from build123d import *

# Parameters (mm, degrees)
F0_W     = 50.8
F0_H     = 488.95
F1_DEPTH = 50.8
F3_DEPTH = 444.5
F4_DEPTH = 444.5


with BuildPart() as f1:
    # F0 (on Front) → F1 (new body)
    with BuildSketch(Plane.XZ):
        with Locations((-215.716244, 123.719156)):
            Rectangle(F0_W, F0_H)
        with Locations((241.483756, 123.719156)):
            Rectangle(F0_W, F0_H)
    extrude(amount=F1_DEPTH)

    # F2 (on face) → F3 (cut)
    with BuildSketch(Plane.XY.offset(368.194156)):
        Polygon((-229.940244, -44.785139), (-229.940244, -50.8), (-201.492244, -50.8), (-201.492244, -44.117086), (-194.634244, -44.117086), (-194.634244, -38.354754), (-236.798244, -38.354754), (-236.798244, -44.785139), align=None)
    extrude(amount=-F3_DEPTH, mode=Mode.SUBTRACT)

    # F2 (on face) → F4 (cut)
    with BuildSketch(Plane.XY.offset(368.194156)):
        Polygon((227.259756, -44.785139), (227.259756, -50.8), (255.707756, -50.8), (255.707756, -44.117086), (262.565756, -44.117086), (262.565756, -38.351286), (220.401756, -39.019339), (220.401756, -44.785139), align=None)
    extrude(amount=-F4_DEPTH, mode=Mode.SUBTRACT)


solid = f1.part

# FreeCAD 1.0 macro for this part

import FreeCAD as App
import Part
import Sketcher
Q = App.Units.Quantity

doc = App.newDocument("Part")
params = doc.addObject("Spreadsheet::Sheet", "Params")
for row, (alias, value) in enumerate([
    ("sketch1_width", "2 in"),
    ("sketch1_height", "19.25 in"),
    ("pad1_length", "2 in"),
    ("sketch2_width", "1.12 in"),
    ("sketch2_width2", "0.27 in"),
    ("pocket1_length", "17.5 in"),
    ("sketch3_width", "1.12 in"),
    ("sketch3_width2", "0.27 in"),
    ("sketch3_height", "0.227 in"),
    ("pocket2_length", "17.5 in"),
], start=1):
    params.set(f"A{row}", alias)
    params.set(f"B{row}", "=" + value)
    params.setAlias(f"B{row}", alias)

body = doc.addObject("PartDesign::Body", "Body")
body.AllowCompound = True

# Sketch on XZ plane
sketch1 = body.newObject("Sketcher::SketchObject", "Sketch")
sketch1.AttachmentSupport = (doc.getObject("XZ_Plane"), [""])
sketch1.MapMode = "FlatFace"
sketch1.addGeometry([
    Part.LineSegment(App.Vector(-241, 368, 0), App.Vector(-241, -121, 0)),  # 0
    Part.LineSegment(App.Vector(-241, -121, 0), App.Vector(-190, -121, 0)),  # 1
    Part.LineSegment(App.Vector(-190, -121, 0), App.Vector(-190, 368, 0)),  # 2
    Part.LineSegment(App.Vector(-190, 368, 0), App.Vector(-241, 368, 0)),  # 3
    Part.LineSegment(App.Vector(216, 368, 0), App.Vector(216, -121, 0)),  # 4
    Part.LineSegment(App.Vector(216, -121, 0), App.Vector(267, -121, 0)),  # 5
    Part.LineSegment(App.Vector(267, -121, 0), App.Vector(267, 368, 0)),  # 6
    Part.LineSegment(App.Vector(267, 368, 0), App.Vector(216, 368, 0)),  # 7
], False)
sketch1.addConstraint([
    Sketcher.Constraint("Coincident", 0, 2, 1, 1),
    Sketcher.Constraint("Coincident", 1, 2, 2, 1),
    Sketcher.Constraint("Coincident", 2, 2, 3, 1),
    Sketcher.Constraint("Coincident", 3, 2, 0, 1),
    Sketcher.Constraint("Coincident", 4, 2, 5, 1),
    Sketcher.Constraint("Coincident", 5, 2, 6, 1),
    Sketcher.Constraint("Coincident", 6, 2, 7, 1),
    Sketcher.Constraint("Coincident", 7, 2, 4, 1),
    Sketcher.Constraint("Vertical", 0),
    Sketcher.Constraint("Horizontal", 1),
    Sketcher.Constraint("Vertical", 2),
    Sketcher.Constraint("Horizontal", 3),
    Sketcher.Constraint("Vertical", 4),
    Sketcher.Constraint("Horizontal", 5),
    Sketcher.Constraint("Vertical", 6),
    Sketcher.Constraint("Horizontal", 7),
    Sketcher.Constraint("Horizontal", 1, 2, 4, 2),
    Sketcher.Constraint("Horizontal", 3, 2, 6, 2),
    Sketcher.Constraint("Equal", 3, 5),
    Sketcher.Constraint("DistanceX", 1, 1, 1, 2, Q("2 in")),
    Sketcher.Constraint("DistanceX", 1, 2, 4, 2, Q("16 in")),
    Sketcher.Constraint("DistanceY", 0, 2, 0, 1, Q("19.25 in")),
    Sketcher.Constraint("DistanceX", 0, 2, -1, 1, Q("241.116244 mm")),
    Sketcher.Constraint("DistanceY", 0, 2, -1, 1, Q("120.755844 mm")),
])
sketch1.setExpression("Constraints[19]", "Params.sketch1_width")
sketch1.setExpression("Constraints[21]", "Params.sketch1_height")
pad1 = body.newObject("PartDesign::Pad", "Pad")
pad1.Profile = sketch1
pad1.setExpression("Length", "Params.pad1_length")

# Sketch on XY plane
sketch2 = body.newObject("Sketcher::SketchObject", "Sketch001")
sketch2.AttachmentSupport = (doc.getObject("XY_Plane"), [""])
sketch2.MapMode = "FlatFace"
sketch2.AttachmentOffset = App.Placement(App.Vector(0, 0, 368.194156), App.Rotation())
sketch2.addGeometry([
    Part.LineSegment(App.Vector(-230, -45, 0), App.Vector(-230, -51, 0)),  # 0
    Part.LineSegment(App.Vector(-230, -51, 0), App.Vector(-201, -51, 0)),  # 1
    Part.LineSegment(App.Vector(-201, -51, 0), App.Vector(-201, -44, 0)),  # 2
    Part.LineSegment(App.Vector(-201, -44, 0), App.Vector(-195, -44, 0)),  # 3
    Part.LineSegment(App.Vector(-195, -44, 0), App.Vector(-195, -38, 0)),  # 4
    Part.LineSegment(App.Vector(-195, -38, 0), App.Vector(-237, -38, 0)),  # 5
    Part.LineSegment(App.Vector(-237, -38, 0), App.Vector(-237, -45, 0)),  # 6
    Part.LineSegment(App.Vector(-237, -45, 0), App.Vector(-230, -45, 0)),  # 7
], False)
sketch2.addConstraint([
    Sketcher.Constraint("Coincident", 0, 2, 1, 1),
    Sketcher.Constraint("Coincident", 1, 2, 2, 1),
    Sketcher.Constraint("Coincident", 2, 2, 3, 1),
    Sketcher.Constraint("Coincident", 3, 2, 4, 1),
    Sketcher.Constraint("Coincident", 4, 2, 5, 1),
    Sketcher.Constraint("Coincident", 5, 2, 6, 1),
    Sketcher.Constraint("Coincident", 6, 2, 7, 1),
    Sketcher.Constraint("Coincident", 7, 2, 0, 1),
    Sketcher.Constraint("Vertical", 0),
    Sketcher.Constraint("Horizontal", 1),
    Sketcher.Constraint("Vertical", 2),
    Sketcher.Constraint("Horizontal", 3),
    Sketcher.Constraint("Vertical", 4),
    Sketcher.Constraint("Horizontal", 5),
    Sketcher.Constraint("Vertical", 6),
    Sketcher.Constraint("Horizontal", 7),
    Sketcher.Constraint("Equal", 3, 7),
    Sketcher.Constraint("DistanceY", 0, 2, -1, 1, Q("2 in")),
    Sketcher.Constraint("DistanceX", 1, 1, 1, 2, Q("1.12 in")),
    Sketcher.Constraint("DistanceX", 3, 1, 3, 2, Q("0.27 in")),
    Sketcher.Constraint("DistanceY", 0, 2, 0, 1, Q("6.014861 mm")),
    Sketcher.Constraint("DistanceY", 2, 1, 2, 2, Q("6.682914 mm")),
    Sketcher.Constraint("DistanceY", 4, 1, 4, 2, Q("5.762332 mm")),
    Sketcher.Constraint("DistanceX", 0, 2, -1, 1, Q("229.940244 mm")),
])
sketch2.setExpression("Constraints[18]", "Params.sketch2_width")
sketch2.setExpression("Constraints[19]", "Params.sketch2_width2")
pocket1 = body.newObject("PartDesign::Pocket", "Pocket")
pocket1.Profile = sketch2
pocket1.setExpression("Length", "Params.pocket1_length")

# Sketch on XY plane
sketch3 = body.newObject("Sketcher::SketchObject", "Sketch002")
sketch3.AttachmentSupport = (doc.getObject("XY_Plane"), [""])
sketch3.MapMode = "FlatFace"
sketch3.AttachmentOffset = App.Placement(App.Vector(0, 0, 368.194156), App.Rotation())
sketch3.addGeometry([
    Part.LineSegment(App.Vector(227, -45, 0), App.Vector(227, -51, 0)),  # 0
    Part.LineSegment(App.Vector(227, -51, 0), App.Vector(256, -51, 0)),  # 1
    Part.LineSegment(App.Vector(256, -51, 0), App.Vector(256, -44, 0)),  # 2
    Part.LineSegment(App.Vector(256, -44, 0), App.Vector(263, -44, 0)),  # 3
    Part.LineSegment(App.Vector(263, -44, 0), App.Vector(263, -38, 0)),  # 4
    Part.LineSegment(App.Vector(263, -38, 0), App.Vector(220, -39, 0)),  # 5
    Part.LineSegment(App.Vector(220, -39, 0), App.Vector(220, -45, 0)),  # 6
    Part.LineSegment(App.Vector(220, -45, 0), App.Vector(227, -45, 0)),  # 7
], False)
sketch3.addConstraint([
    Sketcher.Constraint("Coincident", 0, 2, 1, 1),
    Sketcher.Constraint("Coincident", 1, 2, 2, 1),
    Sketcher.Constraint("Coincident", 2, 2, 3, 1),
    Sketcher.Constraint("Coincident", 3, 2, 4, 1),
    Sketcher.Constraint("Coincident", 4, 2, 5, 1),
    Sketcher.Constraint("Coincident", 5, 2, 6, 1),
    Sketcher.Constraint("Coincident", 6, 2, 7, 1),
    Sketcher.Constraint("Coincident", 7, 2, 0, 1),
    Sketcher.Constraint("Vertical", 0),
    Sketcher.Constraint("Horizontal", 1),
    Sketcher.Constraint("Vertical", 2),
    Sketcher.Constraint("Horizontal", 3),
    Sketcher.Constraint("Vertical", 4),
    Sketcher.Constraint("Vertical", 6),
    Sketcher.Constraint("Horizontal", 7),
    Sketcher.Constraint("Equal", 3, 7),
    Sketcher.Constraint("Equal", 4, 6),
    Sketcher.Constraint("DistanceY", 0, 2, -1, 1, Q("2 in")),
    Sketcher.Constraint("DistanceX", 1, 1, 1, 2, Q("1.12 in")),
    Sketcher.Constraint("DistanceX", 3, 1, 3, 2, Q("0.27 in")),
    Sketcher.Constraint("DistanceY", 4, 1, 4, 2, Q("0.227 in")),
    Sketcher.Constraint("DistanceY", 0, 2, 0, 1, Q("6.014861 mm")),
    Sketcher.Constraint("DistanceY", 2, 1, 2, 2, Q("6.682914 mm")),
    Sketcher.Constraint("DistanceX", -1, 1, 0, 2, Q("227.259756 mm")),
])
sketch3.setExpression("Constraints[18]", "Params.sketch3_width")
sketch3.setExpression("Constraints[19]", "Params.sketch3_width2")
sketch3.setExpression("Constraints[20]", "Params.sketch3_height")
pocket2 = body.newObject("PartDesign::Pocket", "Pocket001")
pocket2.Profile = sketch3
pocket2.setExpression("Length", "Params.pocket2_length")

doc.recompute()
